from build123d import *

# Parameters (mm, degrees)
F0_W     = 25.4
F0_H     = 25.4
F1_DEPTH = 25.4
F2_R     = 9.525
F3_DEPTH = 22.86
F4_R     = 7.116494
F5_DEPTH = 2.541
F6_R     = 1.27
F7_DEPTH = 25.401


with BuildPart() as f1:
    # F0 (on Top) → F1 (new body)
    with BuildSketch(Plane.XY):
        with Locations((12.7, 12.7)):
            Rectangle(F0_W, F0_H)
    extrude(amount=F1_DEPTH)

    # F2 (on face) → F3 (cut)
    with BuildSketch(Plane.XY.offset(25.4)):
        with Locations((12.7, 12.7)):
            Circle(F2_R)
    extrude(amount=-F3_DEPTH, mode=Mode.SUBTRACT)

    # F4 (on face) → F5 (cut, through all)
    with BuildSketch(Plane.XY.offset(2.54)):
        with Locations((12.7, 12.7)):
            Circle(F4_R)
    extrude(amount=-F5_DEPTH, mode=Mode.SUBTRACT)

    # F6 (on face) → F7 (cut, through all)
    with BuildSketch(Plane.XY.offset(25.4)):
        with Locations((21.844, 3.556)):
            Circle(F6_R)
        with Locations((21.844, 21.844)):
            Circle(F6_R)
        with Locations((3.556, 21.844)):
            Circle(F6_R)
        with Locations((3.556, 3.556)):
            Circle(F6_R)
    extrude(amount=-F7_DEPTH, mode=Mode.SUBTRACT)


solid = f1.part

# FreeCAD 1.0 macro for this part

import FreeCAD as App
import Part
import Sketcher

V = App.Vector
Q = App.Units.Quantity


def add_polygon(sketch, points):
    """Adds a closed chain of lines whose ends are joined by coincident constraints."""
    first, n = sketch.GeometryCount, len(points)
    for a, b in zip(points, points[1:] + points[:1]):
        sketch.addGeometry(Part.LineSegment(App.Vector(*a, 0), App.Vector(*b, 0)), False)
    for i in range(n):
        sketch.addConstraint(Sketcher.Constraint("Coincident", first + i, 2, first + (i + 1) % n, 1))

doc = App.newDocument("Part")
body = doc.addObject("PartDesign::Body", "Body")

sketch1 = body.newObject("Sketcher::SketchObject", "Sketch")
sketch1.AttachmentSupport = (doc.getObject("XY_Plane"), [""])
sketch1.MapMode = "FlatFace"
add_polygon(sketch1, [(0, 25.4), (0, 0), (25.4, 0), (25.4, 25.4)])
sketch1.addConstraint([
    Sketcher.Constraint("Vertical", 0),
    Sketcher.Constraint("Horizontal", 1),
    Sketcher.Constraint("Vertical", 2),
    Sketcher.Constraint("Horizontal", 3),
    Sketcher.Constraint("Coincident", 0, 2, -1, 1),
    Sketcher.Constraint("Equal", 3, 0),
    Sketcher.Constraint("DistanceX", 1, 1, 1, 2, Q("1 in")),
])
pad1 = body.newObject("PartDesign::Pad", "Pad")
pad1.Profile = sketch1
pad1.Length = Q("1 in")

sketch2 = body.newObject("Sketcher::SketchObject", "Sketch001")
sketch2.AttachmentSupport = (doc.getObject("XY_Plane"), [""])
sketch2.MapMode = "FlatFace"
sketch2.AttachmentOffset = App.Placement(V(0, 0, 1 * 25.4), App.Rotation())
sketch2.addGeometry(Part.Circle(V(12.7, 12.7, 0), V(0, 0, 1), 9.525), False)
sketch2.addConstraint([
    Sketcher.Constraint("Diameter", 0, Q("0.75 in")),
    Sketcher.Constraint("DistanceX", -1, 1, 0, 3, Q("0.5 in")),
    Sketcher.Constraint("DistanceY", -1, 1, 0, 3, Q("0.5 in")),
])
pocket1 = body.newObject("PartDesign::Pocket", "Pocket")
pocket1.Profile = sketch2
pocket1.Length = Q("0.9 in")

sketch3 = body.newObject("Sketcher::SketchObject", "Sketch002")
sketch3.AttachmentSupport = (doc.getObject("XY_Plane"), [""])
sketch3.MapMode = "FlatFace"
sketch3.AttachmentOffset = App.Placement(V(0, 0, 0.1 * 25.4), App.Rotation())
sketch3.addGeometry(Part.Circle(V(12.7, 12.7, 0), V(0, 0, 1), 7.116494), False)
sketch3.addConstraint([
    Sketcher.Constraint("DistanceX", -1, 1, 0, 3, Q("0.5 in")),
    Sketcher.Constraint("DistanceY", -1, 1, 0, 3, Q("0.5 in")),
    Sketcher.Constraint("Diameter", 0, 14.232988),
])
pocket2 = body.newObject("PartDesign::Pocket", "Pocket001")
pocket2.Profile = sketch3
pocket2.Type = "ThroughAll"

sketch4 = body.newObject("Sketcher::SketchObject", "Sketch003")
sketch4.AttachmentSupport = (doc.getObject("XY_Plane"), [""])
sketch4.MapMode = "FlatFace"
sketch4.AttachmentOffset = App.Placement(V(0, 0, 1 * 25.4), App.Rotation())
sketch4.addGeometry([
    Part.Circle(V(21.844, 3.556, 0), V(0, 0, 1), 1.27),
    Part.Circle(V(21.844, 21.844, 0), V(0, 0, 1), 1.27),
    Part.Circle(V(3.556, 21.844, 0), V(0, 0, 1), 1.27),
    Part.Circle(V(3.556, 3.556, 0), V(0, 0, 1), 1.27),
], False)
sketch4.addConstraint([
    Sketcher.Constraint("Equal", 0, 1),
    Sketcher.Constraint("Equal", 1, 2),
    Sketcher.Constraint("Equal", 2, 3),
    Sketcher.Constraint("Horizontal", 1, 3, 2, 3),
    Sketcher.Constraint("Horizontal", 0, 3, 3, 3),
    Sketcher.Constraint("Vertical", 0, 3, 1, 3),
    Sketcher.Constraint("Vertical", 2, 3, 3, 3),
    Sketcher.Constraint("Diameter", 0, Q("0.1 in")),
    Sketcher.Constraint("DistanceX", -1, 1, 0, 3, Q("0.86 in")),
    Sketcher.Constraint("DistanceY", -1, 1, 0, 3, Q("0.14 in")),
    Sketcher.Constraint("DistanceY", -1, 1, 1, 3, Q("0.86 in")),
    Sketcher.Constraint("DistanceX", -1, 1, 2, 3, Q("0.14 in")),
])
pocket3 = body.newObject("PartDesign::Pocket", "Pocket002")
pocket3.Profile = sketch4
pocket3.Type = "ThroughAll"

doc.recompute()
